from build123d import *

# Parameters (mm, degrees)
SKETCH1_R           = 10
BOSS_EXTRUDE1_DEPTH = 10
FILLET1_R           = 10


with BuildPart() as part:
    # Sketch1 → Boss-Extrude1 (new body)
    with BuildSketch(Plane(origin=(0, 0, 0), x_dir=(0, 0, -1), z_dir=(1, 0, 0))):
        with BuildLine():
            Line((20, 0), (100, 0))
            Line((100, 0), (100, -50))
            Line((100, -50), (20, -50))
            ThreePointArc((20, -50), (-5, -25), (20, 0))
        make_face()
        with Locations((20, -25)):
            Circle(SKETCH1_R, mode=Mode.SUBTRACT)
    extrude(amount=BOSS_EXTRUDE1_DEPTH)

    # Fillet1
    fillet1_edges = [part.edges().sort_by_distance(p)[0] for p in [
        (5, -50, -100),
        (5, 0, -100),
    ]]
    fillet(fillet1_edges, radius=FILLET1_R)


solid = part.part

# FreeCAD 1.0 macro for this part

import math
import FreeCAD as App
import Part
import Sketcher
Q = App.Units.Quantity


def edges_at(feature, points):
    """Names of the edges that pass closest to the given points."""
    edges = feature.Shape.Edges
    near = lambda p: min(range(len(edges)), key=lambda i: edges[i].distToShape(Part.Vertex(*p))[0])
    return sorted({f"Edge{near(p) + 1}" for p in points})

doc = App.newDocument("Part")
body = doc.addObject("PartDesign::Body", "Body")

sketch1 = body.newObject("Sketcher::SketchObject", "Sketch")
sketch1.AttachmentSupport = (doc.getObject("YZ_Plane"), [""])
sketch1.MapMode = "FlatFace"
sketch1.addGeometry([
    Part.LineSegment(App.Vector(0, -100, 0), App.Vector(0, -20, 0)),
    Part.ArcOfCircle(Part.Circle(App.Vector(-25, -20, 0), App.Vector(0, 0, 1), 25), math.radians(0), math.radians(180)),
    Part.LineSegment(App.Vector(-50, -20, 0), App.Vector(-50, -100, 0)),
    Part.LineSegment(App.Vector(-50, -100, 0), App.Vector(0, -100, 0)),
    Part.Circle(App.Vector(-25, -20, 0), App.Vector(0, 0, 1), 10),
], False)
sketch1.addConstraint([
    Sketcher.Constraint("Tangent", 0, 2, 1, 1),
    Sketcher.Constraint("Tangent", 1, 2, 2, 1),
    Sketcher.Constraint("Coincident", 2, 2, 3, 1),
    Sketcher.Constraint("Coincident", 3, 2, 0, 1),
    Sketcher.Constraint("Vertical", 0),
    Sketcher.Constraint("Vertical", 2),
    Sketcher.Constraint("Horizontal", 3),
    Sketcher.Constraint("Coincident", 4, 3, 1, 3),
    Sketcher.Constraint("PointOnObject", 0, 2, -2),
    Sketcher.Constraint("Diameter", 4, Q("20 mm")),
    Sketcher.Constraint("Radius", 1, Q("25 mm")),
    Sketcher.Constraint("DistanceY", 0, 1, 0, 2, Q("80 mm")),
    Sketcher.Constraint("DistanceY", 1, 3, -1, 1, Q("20 mm")),
])
pad1 = body.newObject("PartDesign::Pad", "Pad")
pad1.Profile = sketch1
pad1.Length = 10
doc.recompute()

fillet = body.newObject("PartDesign::Fillet", "Fillet")
fillet.Base = (pad1, edges_at(pad1, [(5, -50, -100), (5, 0, -100)]))
fillet.Radius = 10

doc.recompute()
